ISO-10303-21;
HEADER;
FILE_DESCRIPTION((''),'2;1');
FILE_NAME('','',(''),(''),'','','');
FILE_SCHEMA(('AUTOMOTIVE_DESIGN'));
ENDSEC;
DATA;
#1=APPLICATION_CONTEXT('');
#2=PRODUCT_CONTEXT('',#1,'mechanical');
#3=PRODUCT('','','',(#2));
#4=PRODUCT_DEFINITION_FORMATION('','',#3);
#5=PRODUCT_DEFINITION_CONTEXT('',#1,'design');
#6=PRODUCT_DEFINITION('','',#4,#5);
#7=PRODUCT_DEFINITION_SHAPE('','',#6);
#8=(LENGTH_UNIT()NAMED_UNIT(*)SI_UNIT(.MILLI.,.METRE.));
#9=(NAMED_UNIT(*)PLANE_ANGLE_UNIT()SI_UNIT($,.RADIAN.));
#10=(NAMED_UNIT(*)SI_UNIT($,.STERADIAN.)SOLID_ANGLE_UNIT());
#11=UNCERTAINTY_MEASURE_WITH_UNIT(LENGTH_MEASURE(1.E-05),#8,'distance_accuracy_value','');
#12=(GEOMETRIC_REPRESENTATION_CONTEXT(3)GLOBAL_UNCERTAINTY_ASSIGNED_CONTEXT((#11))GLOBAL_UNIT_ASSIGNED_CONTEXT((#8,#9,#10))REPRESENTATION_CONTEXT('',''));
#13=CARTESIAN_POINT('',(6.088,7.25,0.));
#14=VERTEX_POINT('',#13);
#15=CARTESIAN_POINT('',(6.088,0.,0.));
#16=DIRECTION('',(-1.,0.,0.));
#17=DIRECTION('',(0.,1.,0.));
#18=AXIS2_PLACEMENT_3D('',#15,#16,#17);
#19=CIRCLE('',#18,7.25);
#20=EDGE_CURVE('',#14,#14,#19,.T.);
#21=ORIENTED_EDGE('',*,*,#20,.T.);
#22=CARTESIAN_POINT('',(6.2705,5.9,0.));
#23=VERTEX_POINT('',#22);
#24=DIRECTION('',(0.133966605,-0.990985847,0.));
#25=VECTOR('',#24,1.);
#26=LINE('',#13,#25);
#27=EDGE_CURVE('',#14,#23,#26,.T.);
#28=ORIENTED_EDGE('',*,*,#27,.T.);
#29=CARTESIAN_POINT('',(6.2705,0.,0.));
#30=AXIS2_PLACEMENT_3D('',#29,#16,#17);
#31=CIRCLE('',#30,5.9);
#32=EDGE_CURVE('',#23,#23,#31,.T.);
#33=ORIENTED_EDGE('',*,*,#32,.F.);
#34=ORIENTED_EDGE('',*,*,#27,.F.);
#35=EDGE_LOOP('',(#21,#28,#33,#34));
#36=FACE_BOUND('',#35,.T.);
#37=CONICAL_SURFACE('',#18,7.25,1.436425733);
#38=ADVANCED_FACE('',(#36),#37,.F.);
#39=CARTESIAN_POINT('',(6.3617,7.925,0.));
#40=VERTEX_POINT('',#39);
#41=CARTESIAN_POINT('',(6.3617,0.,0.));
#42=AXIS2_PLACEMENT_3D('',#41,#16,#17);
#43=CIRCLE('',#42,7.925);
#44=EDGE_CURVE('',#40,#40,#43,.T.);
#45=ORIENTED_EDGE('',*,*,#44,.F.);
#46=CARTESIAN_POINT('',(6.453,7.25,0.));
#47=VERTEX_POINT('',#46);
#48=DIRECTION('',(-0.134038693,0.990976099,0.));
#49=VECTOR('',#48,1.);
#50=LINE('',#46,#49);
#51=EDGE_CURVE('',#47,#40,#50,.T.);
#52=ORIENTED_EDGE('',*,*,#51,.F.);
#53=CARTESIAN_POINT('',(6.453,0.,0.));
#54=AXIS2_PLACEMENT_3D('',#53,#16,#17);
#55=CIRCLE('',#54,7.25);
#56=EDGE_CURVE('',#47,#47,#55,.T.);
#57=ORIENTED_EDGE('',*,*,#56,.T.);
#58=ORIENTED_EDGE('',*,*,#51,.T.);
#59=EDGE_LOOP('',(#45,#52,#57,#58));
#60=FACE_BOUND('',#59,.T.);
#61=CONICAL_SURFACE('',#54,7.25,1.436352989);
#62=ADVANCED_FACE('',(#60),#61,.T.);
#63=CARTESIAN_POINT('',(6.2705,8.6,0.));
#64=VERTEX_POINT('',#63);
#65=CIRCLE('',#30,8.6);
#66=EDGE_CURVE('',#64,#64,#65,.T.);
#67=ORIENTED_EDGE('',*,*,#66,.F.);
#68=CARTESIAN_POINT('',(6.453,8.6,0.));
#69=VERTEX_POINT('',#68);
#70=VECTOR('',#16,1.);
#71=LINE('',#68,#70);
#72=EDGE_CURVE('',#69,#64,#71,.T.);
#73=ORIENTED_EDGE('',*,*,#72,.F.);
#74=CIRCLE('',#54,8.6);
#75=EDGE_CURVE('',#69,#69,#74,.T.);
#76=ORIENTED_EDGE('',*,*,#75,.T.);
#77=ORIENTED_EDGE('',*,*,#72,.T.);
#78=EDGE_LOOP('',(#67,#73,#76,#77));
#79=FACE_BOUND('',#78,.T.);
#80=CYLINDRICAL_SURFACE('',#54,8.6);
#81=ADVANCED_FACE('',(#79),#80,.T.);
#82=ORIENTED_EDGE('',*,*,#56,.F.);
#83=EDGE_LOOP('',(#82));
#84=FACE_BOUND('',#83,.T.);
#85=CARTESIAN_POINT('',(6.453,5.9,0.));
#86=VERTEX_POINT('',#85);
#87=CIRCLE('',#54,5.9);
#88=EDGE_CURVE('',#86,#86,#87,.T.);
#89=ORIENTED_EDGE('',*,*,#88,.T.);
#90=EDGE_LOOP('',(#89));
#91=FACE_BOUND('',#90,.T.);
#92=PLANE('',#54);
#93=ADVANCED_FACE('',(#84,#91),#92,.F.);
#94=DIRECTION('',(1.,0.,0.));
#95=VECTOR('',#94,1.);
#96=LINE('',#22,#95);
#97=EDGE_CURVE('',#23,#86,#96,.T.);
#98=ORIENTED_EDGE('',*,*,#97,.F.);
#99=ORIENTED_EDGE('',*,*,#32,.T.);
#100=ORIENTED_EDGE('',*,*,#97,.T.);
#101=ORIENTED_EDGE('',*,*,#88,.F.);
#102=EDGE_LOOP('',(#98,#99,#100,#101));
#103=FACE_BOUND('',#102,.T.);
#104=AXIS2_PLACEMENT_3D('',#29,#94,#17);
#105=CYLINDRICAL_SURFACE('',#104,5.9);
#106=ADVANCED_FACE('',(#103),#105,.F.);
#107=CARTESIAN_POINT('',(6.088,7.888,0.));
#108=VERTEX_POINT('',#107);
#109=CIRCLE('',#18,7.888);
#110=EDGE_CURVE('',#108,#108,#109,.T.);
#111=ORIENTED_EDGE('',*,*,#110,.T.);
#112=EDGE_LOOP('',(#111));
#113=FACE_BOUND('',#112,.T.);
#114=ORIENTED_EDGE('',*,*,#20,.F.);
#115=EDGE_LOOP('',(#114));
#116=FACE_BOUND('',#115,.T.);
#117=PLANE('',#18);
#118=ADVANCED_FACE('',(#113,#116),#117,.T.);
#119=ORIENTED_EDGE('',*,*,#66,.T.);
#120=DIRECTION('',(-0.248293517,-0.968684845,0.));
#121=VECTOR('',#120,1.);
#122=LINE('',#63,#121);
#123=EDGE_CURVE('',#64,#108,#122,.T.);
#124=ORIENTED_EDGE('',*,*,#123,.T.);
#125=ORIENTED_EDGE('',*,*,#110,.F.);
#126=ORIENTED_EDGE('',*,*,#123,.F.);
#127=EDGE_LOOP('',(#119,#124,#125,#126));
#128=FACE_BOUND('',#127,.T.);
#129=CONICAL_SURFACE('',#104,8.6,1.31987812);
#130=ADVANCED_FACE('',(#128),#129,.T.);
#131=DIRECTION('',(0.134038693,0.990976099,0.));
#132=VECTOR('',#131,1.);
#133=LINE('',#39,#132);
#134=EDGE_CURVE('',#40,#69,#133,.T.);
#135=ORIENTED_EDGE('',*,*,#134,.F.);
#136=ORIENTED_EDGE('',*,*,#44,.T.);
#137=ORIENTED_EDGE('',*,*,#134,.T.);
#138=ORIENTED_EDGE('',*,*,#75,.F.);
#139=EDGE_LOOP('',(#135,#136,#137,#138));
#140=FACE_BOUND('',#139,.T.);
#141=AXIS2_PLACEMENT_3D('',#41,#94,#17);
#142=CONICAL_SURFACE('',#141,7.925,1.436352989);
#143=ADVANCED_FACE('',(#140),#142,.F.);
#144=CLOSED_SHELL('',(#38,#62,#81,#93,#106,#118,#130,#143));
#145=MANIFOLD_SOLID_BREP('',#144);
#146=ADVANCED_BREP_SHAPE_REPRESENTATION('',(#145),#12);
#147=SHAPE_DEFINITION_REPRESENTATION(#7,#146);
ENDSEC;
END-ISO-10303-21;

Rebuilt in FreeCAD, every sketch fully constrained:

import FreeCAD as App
import Part
import Sketcher
Q = App.Units.Quantity

doc = App.newDocument("Part")
body = doc.addObject("PartDesign::Body", "Body")

# Sketch on XY plane
sketch1 = body.newObject("Sketcher::SketchObject", "Sketch")
sketch1.AttachmentSupport = (doc.getObject("XY_Plane"), [""])
sketch1.MapMode = "FlatFace"
sketch1.addGeometry([
    Part.LineSegment(App.Vector(6.27, 8.6, 0), App.Vector(6.09, 7.89, 0)),  # 0
    Part.LineSegment(App.Vector(6.09, 7.89, 0), App.Vector(6.09, 7.25, 0)),  # 1
    Part.LineSegment(App.Vector(6.09, 7.25, 0), App.Vector(6.27, 5.9, 0)),  # 2
    Part.LineSegment(App.Vector(6.27, 5.9, 0), App.Vector(6.45, 5.9, 0)),  # 3
    Part.LineSegment(App.Vector(6.45, 5.9, 0), App.Vector(6.45, 7.25, 0)),  # 4
    Part.LineSegment(App.Vector(6.45, 7.25, 0), App.Vector(6.36, 7.92, 0)),  # 5
    Part.LineSegment(App.Vector(6.36, 7.92, 0), App.Vector(6.45, 8.6, 0)),  # 6
    Part.LineSegment(App.Vector(6.45, 8.6, 0), App.Vector(6.27, 8.6, 0)),  # 7
], False)
sketch1.addConstraint([
    Sketcher.Constraint("Coincident", 0, 2, 1, 1),
    Sketcher.Constraint("Coincident", 1, 2, 2, 1),
    Sketcher.Constraint("Coincident", 2, 2, 3, 1),
    Sketcher.Constraint("Coincident", 3, 2, 4, 1),
    Sketcher.Constraint("Coincident", 4, 2, 5, 1),
    Sketcher.Constraint("Coincident", 5, 2, 6, 1),
    Sketcher.Constraint("Coincident", 6, 2, 7, 1),
    Sketcher.Constraint("Coincident", 7, 2, 0, 1),
    Sketcher.Constraint("Vertical", 1),
    Sketcher.Constraint("Horizontal", 3),
    Sketcher.Constraint("Vertical", 4),
    Sketcher.Constraint("Horizontal", 7),
    Sketcher.Constraint("Parallel", 2, 5),
    Sketcher.Constraint("Horizontal", 1, 2, 4, 2),
    Sketcher.Constraint("Vertical", 4, 2, 6, 2),
    Sketcher.Constraint("Vertical", 2, 2, 7, 2),
    Sketcher.Constraint("Equal", 5, 6),
    Sketcher.Constraint("Angle", 2, Q("-82.3011 deg")),
    Sketcher.Constraint("DistanceY", 4, 1, 4, 2, Q("1.35 mm")),
    Sketcher.Constraint("DistanceY", -1, 1, 2, 2, Q("5.9 mm")),
    Sketcher.Constraint("DistanceY", -1, 1, 6, 2, Q("8.6 mm")),
    Sketcher.Constraint("DistanceY", 1, 2, 1, 1, Q("0.638 mm")),
    Sketcher.Constraint("DistanceX", 3, 1, 3, 2, Q("0.1825 mm")),
    Sketcher.Constraint("DistanceX", -1, 1, 0, 2, Q("6.088 mm")),
])
revolution = body.newObject("PartDesign::Revolution", "Revolution")
revolution.Profile = sketch1
revolution.ReferenceAxis = (sketch1, ["H_Axis"])
revolution.Angle = 360

doc.recompute()
